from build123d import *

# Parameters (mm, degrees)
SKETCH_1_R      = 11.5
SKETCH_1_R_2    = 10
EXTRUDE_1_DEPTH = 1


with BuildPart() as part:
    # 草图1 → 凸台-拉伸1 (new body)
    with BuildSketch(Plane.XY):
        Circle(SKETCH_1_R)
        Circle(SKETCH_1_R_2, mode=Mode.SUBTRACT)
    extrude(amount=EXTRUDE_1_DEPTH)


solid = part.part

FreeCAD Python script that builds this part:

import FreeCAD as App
import Part
import Sketcher
Q = App.Units.Quantity

doc = App.newDocument("Part")
params = doc.addObject("Spreadsheet::Sheet", "Params")
for row, (alias, value) in enumerate([
    ("sketch1_diameter", "23 mm"),
    ("sketch1_diameter2", "20 mm"),
    ("pad1_length", "1 mm"),
], start=1):
    params.set(f"A{row}", alias)
    params.set(f"B{row}", "=" + value)
    params.setAlias(f"B{row}", alias)

body = doc.addObject("PartDesign::Body", "Body")

# Sketch on XY plane
sketch1 = doc.addObject("Sketcher::SketchObject", "Sketch")
body.addObject(sketch1)
sketch1.AttachmentSupport = (doc.XY_Plane, [""])
sketch1.MapMode = "FlatFace"
sketch1.addGeometry([
    Part.Circle(App.Vector(0, 0, 0), App.Vector(0, 0, 1), 12),
    Part.Circle(App.Vector(0, 0, 0), App.Vector(0, 0, 1), 10),
], False)
sketch1.addConstraint([
    Sketcher.Constraint("Coincident", 0, 3, -1, 1),
    Sketcher.Constraint("Coincident", 1, 3, -1, 1),
    Sketcher.Constraint("Diameter", 0, Q("23 mm")),
    Sketcher.Constraint("Diameter", 1, Q("20 mm")),
])
sketch1.setExpression("Constraints[2]", "Params.sketch1_diameter")
sketch1.setExpression("Constraints[3]", "Params.sketch1_diameter2")
pad1 = doc.addObject("PartDesign::Pad", "Pad")
body.addObject(pad1)
pad1.Profile = sketch1
pad1.setExpression("Length", "Params.pad1_length")

doc.recompute()
